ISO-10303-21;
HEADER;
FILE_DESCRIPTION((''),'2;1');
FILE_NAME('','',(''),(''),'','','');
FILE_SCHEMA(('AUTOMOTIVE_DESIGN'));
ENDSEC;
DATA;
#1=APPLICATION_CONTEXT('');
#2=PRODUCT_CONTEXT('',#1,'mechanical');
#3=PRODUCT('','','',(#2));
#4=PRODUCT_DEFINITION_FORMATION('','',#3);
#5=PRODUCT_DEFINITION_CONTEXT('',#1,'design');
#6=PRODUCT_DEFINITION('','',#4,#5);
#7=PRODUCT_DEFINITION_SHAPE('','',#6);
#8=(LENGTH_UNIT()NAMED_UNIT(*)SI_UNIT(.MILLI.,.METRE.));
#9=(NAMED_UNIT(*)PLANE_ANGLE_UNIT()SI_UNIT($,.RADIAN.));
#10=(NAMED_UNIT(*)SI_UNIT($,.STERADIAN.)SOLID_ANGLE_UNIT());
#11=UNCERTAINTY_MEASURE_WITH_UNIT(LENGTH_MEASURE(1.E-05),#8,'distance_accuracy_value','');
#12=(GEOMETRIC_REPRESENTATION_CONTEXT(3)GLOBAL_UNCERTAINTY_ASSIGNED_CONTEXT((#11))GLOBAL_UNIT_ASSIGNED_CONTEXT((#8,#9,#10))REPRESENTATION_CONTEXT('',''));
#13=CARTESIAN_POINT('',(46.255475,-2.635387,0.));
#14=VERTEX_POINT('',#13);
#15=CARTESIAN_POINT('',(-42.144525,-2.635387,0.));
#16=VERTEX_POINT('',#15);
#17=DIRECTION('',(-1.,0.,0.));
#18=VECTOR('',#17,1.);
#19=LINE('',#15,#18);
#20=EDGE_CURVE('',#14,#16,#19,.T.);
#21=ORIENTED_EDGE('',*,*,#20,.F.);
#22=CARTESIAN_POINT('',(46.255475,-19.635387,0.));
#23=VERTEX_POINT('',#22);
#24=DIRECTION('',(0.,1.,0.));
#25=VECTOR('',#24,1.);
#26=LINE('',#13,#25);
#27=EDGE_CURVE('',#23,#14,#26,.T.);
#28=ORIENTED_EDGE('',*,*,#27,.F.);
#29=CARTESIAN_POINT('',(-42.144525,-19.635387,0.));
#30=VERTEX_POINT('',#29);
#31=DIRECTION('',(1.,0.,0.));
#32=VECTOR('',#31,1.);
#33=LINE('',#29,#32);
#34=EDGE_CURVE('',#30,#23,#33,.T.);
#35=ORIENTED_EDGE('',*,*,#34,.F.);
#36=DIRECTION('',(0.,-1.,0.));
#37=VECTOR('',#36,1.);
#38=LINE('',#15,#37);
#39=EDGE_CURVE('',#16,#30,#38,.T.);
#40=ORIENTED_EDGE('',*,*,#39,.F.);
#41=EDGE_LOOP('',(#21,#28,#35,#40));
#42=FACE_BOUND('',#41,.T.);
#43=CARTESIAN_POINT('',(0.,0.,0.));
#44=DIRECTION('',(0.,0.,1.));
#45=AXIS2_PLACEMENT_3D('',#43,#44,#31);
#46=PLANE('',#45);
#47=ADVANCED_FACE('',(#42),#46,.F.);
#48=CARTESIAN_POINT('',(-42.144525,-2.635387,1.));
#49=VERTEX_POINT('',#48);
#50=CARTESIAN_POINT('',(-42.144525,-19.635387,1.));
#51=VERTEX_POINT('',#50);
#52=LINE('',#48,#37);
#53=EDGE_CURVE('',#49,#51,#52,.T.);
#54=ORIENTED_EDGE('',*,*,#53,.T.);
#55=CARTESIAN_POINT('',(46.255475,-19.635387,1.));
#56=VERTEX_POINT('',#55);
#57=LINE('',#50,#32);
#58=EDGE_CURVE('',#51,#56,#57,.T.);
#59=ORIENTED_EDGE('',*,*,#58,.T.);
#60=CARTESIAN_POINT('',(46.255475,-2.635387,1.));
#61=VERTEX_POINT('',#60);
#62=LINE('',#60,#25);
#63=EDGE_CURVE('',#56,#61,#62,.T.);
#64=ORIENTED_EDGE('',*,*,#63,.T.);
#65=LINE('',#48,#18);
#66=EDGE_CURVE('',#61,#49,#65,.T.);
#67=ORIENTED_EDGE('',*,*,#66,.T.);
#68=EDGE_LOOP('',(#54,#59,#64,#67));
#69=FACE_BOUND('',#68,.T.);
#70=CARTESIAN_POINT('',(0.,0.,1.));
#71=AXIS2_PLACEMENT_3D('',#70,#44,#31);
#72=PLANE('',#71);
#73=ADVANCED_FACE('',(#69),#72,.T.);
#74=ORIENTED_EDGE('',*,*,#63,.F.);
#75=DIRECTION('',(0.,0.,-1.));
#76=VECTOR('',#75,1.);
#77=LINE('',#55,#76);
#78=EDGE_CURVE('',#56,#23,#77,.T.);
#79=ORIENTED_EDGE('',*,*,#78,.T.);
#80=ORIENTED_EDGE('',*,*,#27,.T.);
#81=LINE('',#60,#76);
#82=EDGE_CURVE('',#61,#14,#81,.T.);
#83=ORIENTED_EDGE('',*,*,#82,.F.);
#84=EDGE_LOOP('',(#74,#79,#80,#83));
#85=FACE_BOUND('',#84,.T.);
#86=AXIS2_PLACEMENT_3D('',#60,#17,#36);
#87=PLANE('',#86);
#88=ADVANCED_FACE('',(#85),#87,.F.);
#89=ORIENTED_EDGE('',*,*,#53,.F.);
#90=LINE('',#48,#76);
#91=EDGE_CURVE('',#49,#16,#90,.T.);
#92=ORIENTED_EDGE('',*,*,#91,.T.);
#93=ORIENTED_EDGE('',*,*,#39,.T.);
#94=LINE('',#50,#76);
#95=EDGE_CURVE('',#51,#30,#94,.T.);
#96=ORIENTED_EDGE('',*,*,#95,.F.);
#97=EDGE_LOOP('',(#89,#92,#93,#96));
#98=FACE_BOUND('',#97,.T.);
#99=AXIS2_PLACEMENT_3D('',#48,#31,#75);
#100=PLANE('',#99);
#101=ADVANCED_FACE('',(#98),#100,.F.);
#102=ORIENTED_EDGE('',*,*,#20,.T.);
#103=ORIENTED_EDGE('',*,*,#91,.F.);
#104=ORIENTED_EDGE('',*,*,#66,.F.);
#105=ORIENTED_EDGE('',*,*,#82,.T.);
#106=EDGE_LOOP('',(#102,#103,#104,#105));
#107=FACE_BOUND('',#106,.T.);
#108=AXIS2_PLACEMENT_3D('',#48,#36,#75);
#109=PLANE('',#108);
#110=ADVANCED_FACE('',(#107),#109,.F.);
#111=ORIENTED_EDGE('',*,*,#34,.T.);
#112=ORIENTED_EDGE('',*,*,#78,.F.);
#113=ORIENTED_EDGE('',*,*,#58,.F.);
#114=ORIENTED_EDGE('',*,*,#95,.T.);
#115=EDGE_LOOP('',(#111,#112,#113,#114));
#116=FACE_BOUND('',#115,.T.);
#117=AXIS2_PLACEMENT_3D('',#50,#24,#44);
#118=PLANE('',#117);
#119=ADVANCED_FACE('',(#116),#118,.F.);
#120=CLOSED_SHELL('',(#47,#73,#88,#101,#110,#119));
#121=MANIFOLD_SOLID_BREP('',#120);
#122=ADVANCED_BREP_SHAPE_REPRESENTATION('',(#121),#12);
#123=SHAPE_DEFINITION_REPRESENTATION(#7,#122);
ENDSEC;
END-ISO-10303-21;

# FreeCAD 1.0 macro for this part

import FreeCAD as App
import Part
import Sketcher


def add_polygon(sketch, points):
    """Adds a closed chain of lines whose ends are joined by coincident constraints."""
    first, n = sketch.GeometryCount, len(points)
    for a, b in zip(points, points[1:] + points[:1]):
        sketch.addGeometry(Part.LineSegment(App.Vector(*a, 0), App.Vector(*b, 0)), False)
    for i in range(n):
        sketch.addConstraint(Sketcher.Constraint("Coincident", first + i, 2, first + (i + 1) % n, 1))

doc = App.newDocument("Part")
body = doc.addObject("PartDesign::Body", "Body")

sketch1 = body.newObject("Sketcher::SketchObject", "Sketch")
sketch1.AttachmentSupport = (doc.getObject("XY_Plane"), [""])
sketch1.MapMode = "FlatFace"
add_polygon(sketch1, [(-42, -3), (-42, -20), (46, -20), (46, -3)])
sketch1.addConstraint(Sketcher.Constraint("Vertical", 0))
sketch1.addConstraint(Sketcher.Constraint("Horizontal", 1))
sketch1.addConstraint(Sketcher.Constraint("Vertical", 2))
sketch1.addConstraint(Sketcher.Constraint("Horizontal", 3))
sketch1.addConstraint(Sketcher.Constraint("DistanceY", 0, 2, 0, 1, 17.0))
sketch1.addConstraint(Sketcher.Constraint("DistanceX", 1, 1, 1, 2, 88.4))
sketch1.addConstraint(Sketcher.Constraint("DistanceX", 0, 2, -1, 1, 42.144525))
sketch1.addConstraint(Sketcher.Constraint("DistanceY", 0, 2, -1, 1, 19.635387))
pad1 = body.newObject("PartDesign::Pad", "Pad")
pad1.Profile = sketch1
pad1.Length = 1

doc.recompute()
